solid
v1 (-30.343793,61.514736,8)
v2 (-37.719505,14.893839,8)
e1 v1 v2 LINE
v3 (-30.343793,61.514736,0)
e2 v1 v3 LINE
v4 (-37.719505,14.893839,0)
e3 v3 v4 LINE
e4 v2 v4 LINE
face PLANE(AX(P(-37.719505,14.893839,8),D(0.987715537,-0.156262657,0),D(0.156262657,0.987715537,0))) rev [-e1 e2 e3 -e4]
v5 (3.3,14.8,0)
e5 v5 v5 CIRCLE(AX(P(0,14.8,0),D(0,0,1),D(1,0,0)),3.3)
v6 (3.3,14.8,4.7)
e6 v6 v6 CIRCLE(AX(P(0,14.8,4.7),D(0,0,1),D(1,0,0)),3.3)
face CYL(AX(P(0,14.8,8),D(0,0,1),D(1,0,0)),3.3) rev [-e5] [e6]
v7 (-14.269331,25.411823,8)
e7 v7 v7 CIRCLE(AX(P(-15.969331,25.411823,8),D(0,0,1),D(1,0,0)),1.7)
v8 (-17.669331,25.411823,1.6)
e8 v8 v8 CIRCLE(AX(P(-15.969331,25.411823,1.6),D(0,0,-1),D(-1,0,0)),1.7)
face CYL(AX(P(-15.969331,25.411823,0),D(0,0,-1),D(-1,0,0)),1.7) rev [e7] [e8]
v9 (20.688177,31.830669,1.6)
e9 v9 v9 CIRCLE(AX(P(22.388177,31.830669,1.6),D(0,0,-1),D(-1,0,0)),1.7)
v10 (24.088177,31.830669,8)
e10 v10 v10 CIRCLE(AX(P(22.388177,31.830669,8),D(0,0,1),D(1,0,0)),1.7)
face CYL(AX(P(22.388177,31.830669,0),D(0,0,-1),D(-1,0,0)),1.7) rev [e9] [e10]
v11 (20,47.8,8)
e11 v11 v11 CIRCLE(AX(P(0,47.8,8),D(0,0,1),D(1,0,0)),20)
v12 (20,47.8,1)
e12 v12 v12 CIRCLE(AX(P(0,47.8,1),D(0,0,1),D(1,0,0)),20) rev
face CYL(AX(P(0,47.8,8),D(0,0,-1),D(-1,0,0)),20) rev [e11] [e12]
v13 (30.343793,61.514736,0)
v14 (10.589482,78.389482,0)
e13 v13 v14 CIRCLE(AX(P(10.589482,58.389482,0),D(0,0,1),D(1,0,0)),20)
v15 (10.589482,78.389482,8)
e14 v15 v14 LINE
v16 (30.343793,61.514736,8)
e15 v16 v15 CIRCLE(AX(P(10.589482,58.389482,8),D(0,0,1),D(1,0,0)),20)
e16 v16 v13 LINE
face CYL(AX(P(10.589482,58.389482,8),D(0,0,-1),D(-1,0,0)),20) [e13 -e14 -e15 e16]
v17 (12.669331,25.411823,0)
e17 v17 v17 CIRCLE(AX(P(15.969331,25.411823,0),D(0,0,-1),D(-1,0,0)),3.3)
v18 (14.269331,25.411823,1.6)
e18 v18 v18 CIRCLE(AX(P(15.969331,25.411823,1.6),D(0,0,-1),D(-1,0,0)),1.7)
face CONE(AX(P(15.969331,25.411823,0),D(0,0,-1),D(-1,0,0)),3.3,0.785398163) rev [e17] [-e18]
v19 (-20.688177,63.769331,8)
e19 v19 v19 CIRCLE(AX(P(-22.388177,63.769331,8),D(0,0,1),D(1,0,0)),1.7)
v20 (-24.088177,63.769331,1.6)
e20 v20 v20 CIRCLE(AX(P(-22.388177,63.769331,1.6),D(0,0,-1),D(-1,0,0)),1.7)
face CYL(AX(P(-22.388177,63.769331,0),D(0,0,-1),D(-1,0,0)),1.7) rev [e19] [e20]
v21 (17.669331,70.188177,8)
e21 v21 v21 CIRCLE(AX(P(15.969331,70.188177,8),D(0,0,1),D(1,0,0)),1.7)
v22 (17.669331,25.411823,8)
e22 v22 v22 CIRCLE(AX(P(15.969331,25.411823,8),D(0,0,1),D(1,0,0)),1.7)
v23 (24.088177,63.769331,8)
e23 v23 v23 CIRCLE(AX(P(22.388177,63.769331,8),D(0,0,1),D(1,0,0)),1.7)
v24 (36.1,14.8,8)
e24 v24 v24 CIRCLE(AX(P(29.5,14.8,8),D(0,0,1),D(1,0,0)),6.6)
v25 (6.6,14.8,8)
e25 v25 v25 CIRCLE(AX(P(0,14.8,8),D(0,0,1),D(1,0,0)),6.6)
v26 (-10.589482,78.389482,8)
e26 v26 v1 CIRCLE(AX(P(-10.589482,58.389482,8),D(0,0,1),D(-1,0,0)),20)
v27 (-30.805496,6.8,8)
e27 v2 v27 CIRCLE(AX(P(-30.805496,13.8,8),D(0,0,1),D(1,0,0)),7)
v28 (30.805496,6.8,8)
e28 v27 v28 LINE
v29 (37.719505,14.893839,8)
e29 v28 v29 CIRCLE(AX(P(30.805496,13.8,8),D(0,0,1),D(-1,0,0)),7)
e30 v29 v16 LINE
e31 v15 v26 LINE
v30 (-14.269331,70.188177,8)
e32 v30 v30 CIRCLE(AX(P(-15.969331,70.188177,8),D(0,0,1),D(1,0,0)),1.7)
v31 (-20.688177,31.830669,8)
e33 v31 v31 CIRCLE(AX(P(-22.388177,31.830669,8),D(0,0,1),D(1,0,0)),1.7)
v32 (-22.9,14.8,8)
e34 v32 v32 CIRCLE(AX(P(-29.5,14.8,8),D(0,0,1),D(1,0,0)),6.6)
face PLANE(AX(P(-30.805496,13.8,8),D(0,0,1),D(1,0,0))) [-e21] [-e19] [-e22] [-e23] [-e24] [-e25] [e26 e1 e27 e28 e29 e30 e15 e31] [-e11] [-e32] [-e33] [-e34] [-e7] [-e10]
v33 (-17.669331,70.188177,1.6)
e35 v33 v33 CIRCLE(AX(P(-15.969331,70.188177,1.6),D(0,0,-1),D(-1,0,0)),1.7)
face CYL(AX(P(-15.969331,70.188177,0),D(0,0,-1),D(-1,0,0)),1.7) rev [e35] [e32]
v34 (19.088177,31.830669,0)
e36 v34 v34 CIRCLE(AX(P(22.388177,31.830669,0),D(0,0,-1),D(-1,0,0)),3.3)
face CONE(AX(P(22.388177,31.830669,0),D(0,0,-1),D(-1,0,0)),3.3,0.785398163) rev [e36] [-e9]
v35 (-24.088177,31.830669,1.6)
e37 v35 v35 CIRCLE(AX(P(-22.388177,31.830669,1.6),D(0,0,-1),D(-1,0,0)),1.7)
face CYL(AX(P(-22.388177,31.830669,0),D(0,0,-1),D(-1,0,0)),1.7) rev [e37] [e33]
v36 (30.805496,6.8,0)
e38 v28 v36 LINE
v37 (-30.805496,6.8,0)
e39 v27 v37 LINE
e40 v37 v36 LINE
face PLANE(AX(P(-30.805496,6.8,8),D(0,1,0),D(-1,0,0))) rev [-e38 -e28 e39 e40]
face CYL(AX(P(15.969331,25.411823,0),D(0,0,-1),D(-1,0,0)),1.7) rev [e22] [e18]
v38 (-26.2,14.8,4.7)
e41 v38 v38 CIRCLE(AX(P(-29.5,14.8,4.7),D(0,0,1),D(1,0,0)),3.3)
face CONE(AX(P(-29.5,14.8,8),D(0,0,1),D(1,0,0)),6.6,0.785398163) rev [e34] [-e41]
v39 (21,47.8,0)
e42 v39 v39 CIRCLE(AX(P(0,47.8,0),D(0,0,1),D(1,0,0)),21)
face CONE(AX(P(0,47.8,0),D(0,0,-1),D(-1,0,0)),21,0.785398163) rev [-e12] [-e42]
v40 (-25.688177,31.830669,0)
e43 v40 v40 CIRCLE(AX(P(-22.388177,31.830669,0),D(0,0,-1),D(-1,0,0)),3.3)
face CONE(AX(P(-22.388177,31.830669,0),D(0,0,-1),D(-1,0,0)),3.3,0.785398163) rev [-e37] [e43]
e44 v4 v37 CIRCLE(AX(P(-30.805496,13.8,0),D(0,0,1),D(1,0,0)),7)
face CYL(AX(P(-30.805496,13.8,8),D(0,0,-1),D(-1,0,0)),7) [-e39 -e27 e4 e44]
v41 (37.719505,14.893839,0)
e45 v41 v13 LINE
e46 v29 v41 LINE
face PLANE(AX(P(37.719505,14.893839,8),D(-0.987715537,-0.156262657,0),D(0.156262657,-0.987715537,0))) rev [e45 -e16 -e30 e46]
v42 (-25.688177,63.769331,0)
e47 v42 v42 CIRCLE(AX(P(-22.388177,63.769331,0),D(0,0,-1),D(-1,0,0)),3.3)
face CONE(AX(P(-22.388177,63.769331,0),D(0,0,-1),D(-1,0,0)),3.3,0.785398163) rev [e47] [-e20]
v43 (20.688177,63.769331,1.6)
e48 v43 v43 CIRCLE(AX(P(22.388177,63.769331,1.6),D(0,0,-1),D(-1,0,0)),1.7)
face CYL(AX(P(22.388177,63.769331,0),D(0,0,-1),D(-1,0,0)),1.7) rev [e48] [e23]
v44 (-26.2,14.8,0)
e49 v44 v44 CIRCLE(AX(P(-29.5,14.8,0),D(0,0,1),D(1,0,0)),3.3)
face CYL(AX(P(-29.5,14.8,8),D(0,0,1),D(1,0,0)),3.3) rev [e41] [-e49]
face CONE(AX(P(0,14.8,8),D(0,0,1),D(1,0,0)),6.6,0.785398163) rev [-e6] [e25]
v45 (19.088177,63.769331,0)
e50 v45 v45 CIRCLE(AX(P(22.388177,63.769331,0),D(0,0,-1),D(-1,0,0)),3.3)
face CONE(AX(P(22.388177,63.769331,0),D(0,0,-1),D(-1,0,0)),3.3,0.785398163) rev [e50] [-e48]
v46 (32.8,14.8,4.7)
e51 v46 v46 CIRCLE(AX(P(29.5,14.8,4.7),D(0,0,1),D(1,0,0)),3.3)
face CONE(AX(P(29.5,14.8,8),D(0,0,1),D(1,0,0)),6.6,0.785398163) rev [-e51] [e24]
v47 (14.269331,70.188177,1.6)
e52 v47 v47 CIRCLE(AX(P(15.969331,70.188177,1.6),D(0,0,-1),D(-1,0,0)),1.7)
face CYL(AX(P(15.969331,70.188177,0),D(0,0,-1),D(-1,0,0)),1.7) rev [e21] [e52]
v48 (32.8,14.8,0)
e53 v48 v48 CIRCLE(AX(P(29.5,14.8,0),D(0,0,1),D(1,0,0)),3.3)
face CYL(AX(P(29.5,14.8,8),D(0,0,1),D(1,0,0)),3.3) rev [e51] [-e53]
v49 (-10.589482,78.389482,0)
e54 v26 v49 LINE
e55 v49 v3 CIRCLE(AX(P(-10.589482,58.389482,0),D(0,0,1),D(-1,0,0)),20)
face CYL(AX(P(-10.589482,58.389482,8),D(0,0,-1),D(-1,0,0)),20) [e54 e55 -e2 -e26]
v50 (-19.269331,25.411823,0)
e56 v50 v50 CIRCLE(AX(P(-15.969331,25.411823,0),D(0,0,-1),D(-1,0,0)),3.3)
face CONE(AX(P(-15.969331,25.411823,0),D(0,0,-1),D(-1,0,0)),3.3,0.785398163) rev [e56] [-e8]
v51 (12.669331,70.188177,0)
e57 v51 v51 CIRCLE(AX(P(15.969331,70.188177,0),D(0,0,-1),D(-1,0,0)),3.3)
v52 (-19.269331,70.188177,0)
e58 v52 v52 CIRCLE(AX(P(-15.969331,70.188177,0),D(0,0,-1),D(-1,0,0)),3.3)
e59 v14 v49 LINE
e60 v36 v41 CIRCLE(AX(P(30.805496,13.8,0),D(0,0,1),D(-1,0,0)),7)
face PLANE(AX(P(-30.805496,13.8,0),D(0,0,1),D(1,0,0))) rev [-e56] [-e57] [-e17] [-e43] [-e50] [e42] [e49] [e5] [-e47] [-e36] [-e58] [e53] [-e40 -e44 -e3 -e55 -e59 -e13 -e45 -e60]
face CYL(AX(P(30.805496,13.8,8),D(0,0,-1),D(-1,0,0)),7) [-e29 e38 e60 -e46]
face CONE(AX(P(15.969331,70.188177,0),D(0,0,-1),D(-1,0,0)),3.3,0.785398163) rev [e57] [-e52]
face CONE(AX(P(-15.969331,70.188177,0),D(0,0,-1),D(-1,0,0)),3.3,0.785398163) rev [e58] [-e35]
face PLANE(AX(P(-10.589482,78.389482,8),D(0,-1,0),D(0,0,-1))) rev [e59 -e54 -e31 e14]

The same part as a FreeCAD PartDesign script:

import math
import FreeCAD as App
import Part
import Sketcher


def edges_at(feature, points):
    """Names of the edges that pass closest to the given points."""
    edges = feature.Shape.Edges
    near = lambda p: min(range(len(edges)), key=lambda i: edges[i].distToShape(Part.Vertex(*p))[0])
    return sorted({f"Edge{near(p) + 1}" for p in points})

doc = App.newDocument("Part")
body = doc.addObject("PartDesign::Body", "Body")

sketch1 = body.newObject("Sketcher::SketchObject", "Sketch")
sketch1.AttachmentSupport = (doc.getObject("XY_Plane"), [""])
sketch1.MapMode = "FlatFace"
sketch1.addGeometry(Part.LineSegment(App.Vector(-30.343793, 61.514736, 0), App.Vector(-37.719505, 14.893839, 0)), False)
sketch1.addGeometry(Part.ArcOfCircle(Part.Circle(App.Vector(-30.805496, 13.8, 0), App.Vector(0, 0, 1), 7), math.radians(171.009966), math.radians(270)), False)
sketch1.addGeometry(Part.LineSegment(App.Vector(-30.805496, 6.8, 0), App.Vector(30.805496, 6.8, 0)), False)
sketch1.addGeometry(Part.ArcOfCircle(Part.Circle(App.Vector(30.805496, 13.8, 0), App.Vector(0, 0, 1), 7), math.radians(-90), math.radians(8.990034)), False)
sketch1.addGeometry(Part.LineSegment(App.Vector(37.719505, 14.893839, 0), App.Vector(30.343793, 61.514736, 0)), False)
sketch1.addGeometry(Part.ArcOfCircle(Part.Circle(App.Vector(10.589482, 58.389482, 0), App.Vector(0, 0, 1), 20), math.radians(8.990034), math.radians(90)), False)
sketch1.addGeometry(Part.LineSegment(App.Vector(10.589482, 78.389482, 0), App.Vector(-10.589482, 78.389482, 0)), False)
sketch1.addGeometry(Part.ArcOfCircle(Part.Circle(App.Vector(-10.589482, 58.389482, 0), App.Vector(0, 0, 1), 20), math.radians(90), math.radians(171.009966)), False)
sketch1.addGeometry(Part.Circle(App.Vector(29.5, 14.8, 0), App.Vector(0, 0, 1), 3), False)
sketch1.addGeometry(Part.Circle(App.Vector(15.969331, 25.411823, 0), App.Vector(0, 0, 1), 1.5), False)
sketch1.addGeometry(Part.Circle(App.Vector(22.388177, 31.830669, 0), App.Vector(0, 0, 1), 1.5), False)
sketch1.addGeometry(Part.Circle(App.Vector(0, 14.8, 0), App.Vector(0, 0, 1), 3), False)
sketch1.addGeometry(Part.Circle(App.Vector(-15.969331, 25.411823, 0), App.Vector(0, 0, 1), 1.5), False)
sketch1.addGeometry(Part.Circle(App.Vector(-29.5, 14.8, 0), App.Vector(0, 0, 1), 3), False)
sketch1.addGeometry(Part.Circle(App.Vector(-22.388177, 31.830669, 0), App.Vector(0, 0, 1), 1.5), False)
sketch1.addGeometry(Part.Circle(App.Vector(22.388177, 63.769331, 0), App.Vector(0, 0, 1), 1.5), False)
sketch1.addGeometry(Part.Circle(App.Vector(15.969331, 70.188177, 0), App.Vector(0, 0, 1), 1.5), False)
sketch1.addGeometry(Part.Circle(App.Vector(0, 47.8, 0), App.Vector(0, 0, 1), 20), False)
sketch1.addGeometry(Part.Circle(App.Vector(-15.969331, 70.188177, 0), App.Vector(0, 0, 1), 1.5), False)
sketch1.addGeometry(Part.Circle(App.Vector(-22.388177, 63.769331, 0), App.Vector(0, 0, 1), 1.5), False)
sketch1.addConstraint(Sketcher.Constraint("Tangent", 0, 2, 1, 1))
sketch1.addConstraint(Sketcher.Constraint("Tangent", 1, 2, 2, 1))
sketch1.addConstraint(Sketcher.Constraint("Tangent", 2, 2, 3, 1))
sketch1.addConstraint(Sketcher.Constraint("Tangent", 3, 2, 4, 1))
sketch1.addConstraint(Sketcher.Constraint("Tangent", 4, 2, 5, 1))
sketch1.addConstraint(Sketcher.Constraint("Tangent", 5, 2, 6, 1))
sketch1.addConstraint(Sketcher.Constraint("Tangent", 6, 2, 7, 1))
sketch1.addConstraint(Sketcher.Constraint("Tangent", 7, 2, 0, 1))
sketch1.addConstraint(Sketcher.Constraint("Horizontal", 2))
sketch1.addConstraint(Sketcher.Constraint("Horizontal", 6))
sketch1.addConstraint(Sketcher.Constraint("Equal", 1, 3))
sketch1.addConstraint(Sketcher.Constraint("Equal", 5, 7))
sketch1.addConstraint(Sketcher.Constraint("Equal", 9, 10))
sketch1.addConstraint(Sketcher.Constraint("Equal", 8, 11))
sketch1.addConstraint(Sketcher.Constraint("Equal", 10, 12))
sketch1.addConstraint(Sketcher.Constraint("Equal", 11, 13))
sketch1.addConstraint(Sketcher.Constraint("Equal", 12, 14))
sketch1.addConstraint(Sketcher.Constraint("Equal", 14, 15))
sketch1.addConstraint(Sketcher.Constraint("Equal", 15, 16))
sketch1.addConstraint(Sketcher.Constraint("Equal", 7, 17))
sketch1.addConstraint(Sketcher.Constraint("Equal", 16, 18))
sketch1.addConstraint(Sketcher.Constraint("Equal", 18, 19))
sketch1.addConstraint(Sketcher.Constraint("Symmetric", 9, 3, 12, 3, -2))
sketch1.addConstraint(Sketcher.Constraint("Symmetric", 8, 3, 13, 3, -2))
sketch1.addConstraint(Sketcher.Constraint("Symmetric", 10, 3, 14, 3, -2))
sketch1.addConstraint(Sketcher.Constraint("Symmetric", 16, 3, 18, 3, -2))
sketch1.addConstraint(Sketcher.Constraint("Symmetric", 15, 3, 19, 3, -2))
sketch1.addConstraint(Sketcher.Constraint("Symmetric", 0, 2, 3, 2, -2))
sketch1.addConstraint(Sketcher.Constraint("PointOnObject", 11, 3, -2))
sketch1.addConstraint(Sketcher.Constraint("PointOnObject", 17, 3, -2))
sketch1.addConstraint(Sketcher.Constraint("Horizontal", 8, 3, 11, 3))
sketch1.addConstraint(Sketcher.Constraint("Vertical", 10, 3, 15, 3))
sketch1.addConstraint(Sketcher.Constraint("Vertical", 9, 3, 16, 3))
sketch1.addConstraint(Sketcher.Constraint("Diameter", 8, 6.0))
sketch1.addConstraint(Sketcher.Constraint("Diameter", 9, 3.0))
sketch1.addConstraint(Sketcher.Constraint("Diameter", 17, 40.0))
sketch1.addConstraint(Sketcher.Constraint("Radius", 1, 7.0))
sketch1.addConstraint(Sketcher.Constraint("DistanceY", 3, 3, 8, 3, 1.0))
sketch1.addConstraint(Sketcher.Constraint("DistanceY", -1, 1, 1, 3, 13.8))
sketch1.addConstraint(Sketcher.Constraint("DistanceX", -1, 1, 8, 3, 29.5))
sketch1.addConstraint(Sketcher.Constraint("DistanceY", -1, 1, 17, 3, 47.8))
sketch1.addConstraint(Sketcher.Constraint("DistanceX", 2, 1, 2, 2, 61.610993))
sketch1.addConstraint(Sketcher.Constraint("DistanceX", 6, 2, 6, 1, 21.178965))
sketch1.addConstraint(Sketcher.Constraint("DistanceX", -1, 1, 9, 3, 15.969331))
sketch1.addConstraint(Sketcher.Constraint("DistanceY", -1, 1, 10, 3, 31.830669))
sketch1.addConstraint(Sketcher.Constraint("DistanceY", -1, 1, 15, 3, 63.769331))
sketch1.addConstraint(Sketcher.Constraint("DistanceY", -1, 1, 0, 2, 14.893839))
sketch1.addConstraint(Sketcher.Constraint("DistanceY", 9, 3, 5, 3, 32.977659))
sketch1.addConstraint(Sketcher.Constraint("DistanceX", 10, 3, 3, 3, 8.41732))
sketch1.addConstraint(Sketcher.Constraint("DistanceY", 10, 3, 16, 3, 38.357508))
pad1 = body.newObject("PartDesign::Pad", "Pad")
pad1.Profile = sketch1
pad1.Length = 8

sketch2 = body.newObject("Sketcher::SketchObject", "Sketch001")
sketch2.AttachmentSupport = (doc.getObject("XY_Plane"), [""])
sketch2.MapMode = "FlatFace"
sketch2.addGeometry(Part.Circle(App.Vector(22.388177, 63.769331, 0), App.Vector(0, 0, 1), 1.7), False)
sketch2.addGeometry(Part.Circle(App.Vector(15.969331, 70.188177, 0), App.Vector(0, 0, 1), 1.7), False)
sketch2.addGeometry(Part.Circle(App.Vector(-15.969331, 70.188177, 0), App.Vector(0, 0, 1), 1.7), False)
sketch2.addGeometry(Part.Circle(App.Vector(-22.388177, 63.769331, 0), App.Vector(0, 0, 1), 1.7), False)
sketch2.addGeometry(Part.Circle(App.Vector(22.388177, 31.830669, 0), App.Vector(0, 0, 1), 1.7), False)
sketch2.addGeometry(Part.Circle(App.Vector(15.969331, 25.411823, 0), App.Vector(0, 0, 1), 1.7), False)
sketch2.addGeometry(Part.Circle(App.Vector(-15.969331, 25.411823, 0), App.Vector(0, 0, 1), 1.7), False)
sketch2.addGeometry(Part.Circle(App.Vector(-22.388177, 31.830669, 0), App.Vector(0, 0, 1), 1.7), False)
sketch2.addConstraint(Sketcher.Constraint("Equal", 0, 1))
sketch2.addConstraint(Sketcher.Constraint("Equal", 1, 2))
sketch2.addConstraint(Sketcher.Constraint("Equal", 2, 3))
sketch2.addConstraint(Sketcher.Constraint("Equal", 3, 4))
sketch2.addConstraint(Sketcher.Constraint("Equal", 4, 5))
sketch2.addConstraint(Sketcher.Constraint("Equal", 5, 6))
sketch2.addConstraint(Sketcher.Constraint("Equal", 6, 7))
sketch2.addConstraint(Sketcher.Constraint("Symmetric", 1, 3, 2, 3, -2))
sketch2.addConstraint(Sketcher.Constraint("Symmetric", 0, 3, 3, 3, -2))
sketch2.addConstraint(Sketcher.Constraint("Symmetric", 5, 3, 6, 3, -2))
sketch2.addConstraint(Sketcher.Constraint("Symmetric", 4, 3, 7, 3, -2))
sketch2.addConstraint(Sketcher.Constraint("Vertical", 0, 3, 4, 3))
sketch2.addConstraint(Sketcher.Constraint("Vertical", 1, 3, 5, 3))
sketch2.addConstraint(Sketcher.Constraint("Diameter", 0, 3.4))
sketch2.addConstraint(Sketcher.Constraint("DistanceY", -1, 1, 0, 3, 63.769331))
sketch2.addConstraint(Sketcher.Constraint("DistanceX", -1, 1, 1, 3, 15.969331))
sketch2.addConstraint(Sketcher.Constraint("DistanceY", -1, 1, 4, 3, 31.830669))
sketch2.addConstraint(Sketcher.Constraint("DistanceX", 2, 3, 0, 3, 38.357508))
sketch2.addConstraint(Sketcher.Constraint("DistanceY", 4, 3, 1, 3, 38.357508))
sketch2.addConstraint(Sketcher.Constraint("DistanceY", 5, 3, 0, 3, 38.357508))
doc.recompute()
hole = body.newObject("PartDesign::Hole", "Hole")
hole.Profile = sketch2
hole.ThreadType = "None"
hole.Diameter = 3.4
hole.DepthType = "Dimension"
hole.Depth = 8.1
hole.DrillPoint = "Angled"
hole.DrillPointAngle = 118
hole.HoleCutType = "Countersink"
hole.HoleCutDiameter = 6.6
hole.HoleCutCountersinkAngle = 90
hole.Reversed = True

sketch3 = body.newObject("Sketcher::SketchObject", "Sketch002")
sketch3.AttachmentSupport = (doc.getObject("XY_Plane"), [""])
sketch3.MapMode = "FlatFace"
sketch3.AttachmentOffset = App.Placement(App.Vector(0, 0, 8), App.Rotation())
sketch3.addGeometry(Part.Circle(App.Vector(29.5, 14.8, 0), App.Vector(0, 0, 1), 3.3), False)
sketch3.addGeometry(Part.Circle(App.Vector(0, 14.8, 0), App.Vector(0, 0, 1), 3.3), False)
sketch3.addGeometry(Part.Circle(App.Vector(-29.5, 14.8, 0), App.Vector(0, 0, 1), 3.3), False)
sketch3.addConstraint(Sketcher.Constraint("Equal", 0, 1))
sketch3.addConstraint(Sketcher.Constraint("Equal", 1, 2))
sketch3.addConstraint(Sketcher.Constraint("Symmetric", 0, 3, 2, 3, -2))
sketch3.addConstraint(Sketcher.Constraint("PointOnObject", 1, 3, -2))
sketch3.addConstraint(Sketcher.Constraint("Horizontal", 0, 3, 1, 3))
sketch3.addConstraint(Sketcher.Constraint("Diameter", 0, 6.6))
sketch3.addConstraint(Sketcher.Constraint("DistanceX", 2, 3, 0, 3, 59.0))
sketch3.addConstraint(Sketcher.Constraint("DistanceY", -1, 1, 0, 3, 14.8))
doc.recompute()
hole2 = body.newObject("PartDesign::Hole", "Hole001")
hole2.Profile = sketch3
hole2.ThreadType = "None"
hole2.Diameter = 6.6
hole2.DepthType = "Dimension"
hole2.Depth = 8.1
hole2.DrillPoint = "Angled"
hole2.DrillPointAngle = 118
hole2.HoleCutType = "Countersink"
hole2.HoleCutDiameter = 13.2
hole2.HoleCutCountersinkAngle = 90
doc.recompute()

chamfer = body.newObject("PartDesign::Chamfer", "Chamfer")
chamfer.Base = (hole2, edges_at(hole2, [(-20, 47.8, 0)]))
chamfer.Size = 1

doc.recompute()
